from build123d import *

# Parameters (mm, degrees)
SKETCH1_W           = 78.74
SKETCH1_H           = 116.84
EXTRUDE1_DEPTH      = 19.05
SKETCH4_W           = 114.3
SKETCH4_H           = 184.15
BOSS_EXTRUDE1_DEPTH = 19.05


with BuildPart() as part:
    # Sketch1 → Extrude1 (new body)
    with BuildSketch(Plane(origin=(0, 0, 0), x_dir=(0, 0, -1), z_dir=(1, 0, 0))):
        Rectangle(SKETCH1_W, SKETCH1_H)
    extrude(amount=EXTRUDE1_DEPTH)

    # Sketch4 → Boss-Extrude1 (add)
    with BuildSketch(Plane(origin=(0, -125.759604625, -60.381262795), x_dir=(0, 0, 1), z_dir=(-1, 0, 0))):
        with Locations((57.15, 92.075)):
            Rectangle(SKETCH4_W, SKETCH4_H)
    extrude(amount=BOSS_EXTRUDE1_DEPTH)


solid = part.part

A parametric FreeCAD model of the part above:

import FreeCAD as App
import Part
import Sketcher
from FreeCAD import Vector
Q = App.Units.Quantity


def add_polygon(sketch, points):
    """Adds a closed chain of lines whose ends are joined by coincident constraints."""
    first, n = sketch.GeometryCount, len(points)
    for a, b in zip(points, points[1:] + points[:1]):
        sketch.addGeometry(Part.LineSegment(App.Vector(*a, 0), App.Vector(*b, 0)), False)
    for i in range(n):
        sketch.addConstraint(Sketcher.Constraint("Coincident", first + i, 2, first + (i + 1) % n, 1))

doc = App.newDocument("Part")
body = doc.addObject("PartDesign::Body", "Body")

# Sketch on YZ plane
sketch1 = doc.addObject("Sketcher::SketchObject", "Sketch")
body.addObject(sketch1)
sketch1.AttachmentSupport = (doc.YZ_Plane, [""])
sketch1.MapMode = "FlatFace"
add_polygon(sketch1, [(58, 39), (-58, 39), (-58, -39), (58, -39)])  # lines 0-3
sketch1.addConstraint([
    Sketcher.Constraint("Horizontal", 0),
    Sketcher.Constraint("Vertical", 1),
    Sketcher.Constraint("Horizontal", 2),
    Sketcher.Constraint("Vertical", 3),
    Sketcher.Constraint("Symmetric", 0, 2, 2, 2, -1, 1),
    Sketcher.Constraint("DistanceX", 0, 2, 0, 1, Q("4.6 in")),
    Sketcher.Constraint("DistanceY", 1, 2, 1, 1, Q("3.1 in")),
])
pad1 = doc.addObject("PartDesign::Pad", "Pad")
body.addObject(pad1)
pad1.Profile = sketch1
pad1.Length = Q("0.75 in")

# Sketch on YZ plane
sketch2 = doc.addObject("Sketcher::SketchObject", "Sketch001")
body.addObject(sketch2)
sketch2.AttachmentSupport = (doc.YZ_Plane, [""])
sketch2.MapMode = "FlatFace"
add_polygon(sketch2, [(58, -60), (-126, -60), (-126, 54), (58, 54)])  # lines 0-3
sketch2.addConstraint([
    Sketcher.Constraint("Horizontal", 0),
    Sketcher.Constraint("Vertical", 1),
    Sketcher.Constraint("Horizontal", 2),
    Sketcher.Constraint("Vertical", 3),
    Sketcher.Constraint("DistanceY", 1, 1, 1, 2, Q("4.5 in")),
    Sketcher.Constraint("DistanceX", 0, 2, 0, 1, Q("7.25 in")),
    Sketcher.Constraint("DistanceX", 0, 2, -1, 1, 125.759605),
    Sketcher.Constraint("DistanceY", 0, 2, -1, 1, 60.381263),
])
pad2 = doc.addObject("PartDesign::Pad", "Pad001")
body.addObject(pad2)
pad2.Profile = sketch2
pad2.Length = Q("0.75 in")
pad2.Reversed = True

doc.recompute()
